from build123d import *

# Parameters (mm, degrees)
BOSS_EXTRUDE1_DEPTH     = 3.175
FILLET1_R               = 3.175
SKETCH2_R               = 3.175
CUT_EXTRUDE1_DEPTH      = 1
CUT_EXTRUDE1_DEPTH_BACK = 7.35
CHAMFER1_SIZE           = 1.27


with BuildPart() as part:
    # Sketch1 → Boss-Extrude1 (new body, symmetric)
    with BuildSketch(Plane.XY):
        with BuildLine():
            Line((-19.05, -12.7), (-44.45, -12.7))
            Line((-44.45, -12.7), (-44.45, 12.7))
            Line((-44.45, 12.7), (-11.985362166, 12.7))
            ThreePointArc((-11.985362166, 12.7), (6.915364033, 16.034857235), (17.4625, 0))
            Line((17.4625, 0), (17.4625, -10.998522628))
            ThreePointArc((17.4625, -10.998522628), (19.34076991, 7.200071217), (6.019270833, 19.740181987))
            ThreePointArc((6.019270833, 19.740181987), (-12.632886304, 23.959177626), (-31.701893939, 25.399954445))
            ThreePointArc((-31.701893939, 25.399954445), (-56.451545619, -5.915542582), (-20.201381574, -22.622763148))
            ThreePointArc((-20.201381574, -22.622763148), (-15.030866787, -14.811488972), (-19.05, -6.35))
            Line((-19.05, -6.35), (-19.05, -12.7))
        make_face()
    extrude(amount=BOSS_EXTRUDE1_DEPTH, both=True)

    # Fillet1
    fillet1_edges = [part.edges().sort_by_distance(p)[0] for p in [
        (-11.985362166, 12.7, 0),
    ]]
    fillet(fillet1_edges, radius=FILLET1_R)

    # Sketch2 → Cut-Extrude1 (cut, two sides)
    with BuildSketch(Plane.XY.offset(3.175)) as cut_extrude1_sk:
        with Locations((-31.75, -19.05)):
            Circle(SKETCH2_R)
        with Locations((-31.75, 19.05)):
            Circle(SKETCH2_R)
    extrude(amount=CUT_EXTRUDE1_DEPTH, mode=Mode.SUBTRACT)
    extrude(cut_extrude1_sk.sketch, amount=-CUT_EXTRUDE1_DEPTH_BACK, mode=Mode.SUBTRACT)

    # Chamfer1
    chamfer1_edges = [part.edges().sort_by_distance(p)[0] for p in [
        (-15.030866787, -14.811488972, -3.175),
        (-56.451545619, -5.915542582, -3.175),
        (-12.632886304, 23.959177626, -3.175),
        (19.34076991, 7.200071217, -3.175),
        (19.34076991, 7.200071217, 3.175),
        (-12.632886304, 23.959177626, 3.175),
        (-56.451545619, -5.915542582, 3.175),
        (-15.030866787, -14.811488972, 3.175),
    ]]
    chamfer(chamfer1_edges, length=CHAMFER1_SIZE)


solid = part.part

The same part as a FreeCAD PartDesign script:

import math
import FreeCAD as App
import Part
import Sketcher
Q = App.Units.Quantity


def edges_at(feature, points):
    """Names of the edges that pass closest to the given points."""
    edges = feature.Shape.Edges
    near = lambda p: min(range(len(edges)), key=lambda i: edges[i].distToShape(Part.Vertex(*p))[0])
    return sorted({f"Edge{near(p) + 1}" for p in points})

doc = App.newDocument("Part")
body = doc.addObject("PartDesign::Body", "Body")

# Sketch on XY plane
sketch1 = doc.addObject("Sketcher::SketchObject", "Sketch")
body.addObject(sketch1)
sketch1.AttachmentSupport = (doc.XY_Plane, [""])
sketch1.MapMode = "FlatFace"
sketch1.addGeometry(Part.LineSegment(App.Vector(-19, -13, 0), App.Vector(-44, -13, 0)), False)
sketch1.addGeometry(Part.LineSegment(App.Vector(-44, -13, 0), App.Vector(-44, 13, 0)), False)
sketch1.addGeometry(Part.LineSegment(App.Vector(-44, 13, 0), App.Vector(-12, 13, 0)), False)
sketch1.addGeometry(Part.ArcOfCircle(Part.Circle(App.Vector(0, 0, 0), App.Vector(0, 0, 1), 17), math.radians(0), math.radians(133)), False)
sketch1.addGeometry(Part.LineSegment(App.Vector(17, 0, 0), App.Vector(17, -11, 0)), False)
sketch1.addGeometry(Part.ArcOfCircle(Part.Circle(App.Vector(0, 0, 0), App.Vector(0, 0, 1), 21), math.radians(-32), math.radians(73)), False)
sketch1.addGeometry(Part.ArcOfCircle(Part.Circle(App.Vector(-32, -105, 0), App.Vector(0, 0, 1), 130), math.radians(73.04), math.radians(89.89)), False)
sketch1.addGeometry(Part.ArcOfCircle(Part.Circle(App.Vector(-32, 0, 0), App.Vector(0, 0, 1), 25), math.radians(90), math.radians(297)), False)
sketch1.addGeometry(Part.ArcOfCircle(Part.Circle(App.Vector(-25, -14, 0), App.Vector(0, 0, 1), 10), math.radians(-63), math.radians(55)), False)
sketch1.addGeometry(Part.LineSegment(App.Vector(-19, -6, 0), App.Vector(-19, -13, 0)), False)
sketch1.addConstraint(Sketcher.Constraint("Coincident", 0, 2, 1, 1))
sketch1.addConstraint(Sketcher.Constraint("Coincident", 1, 2, 2, 1))
sketch1.addConstraint(Sketcher.Constraint("Coincident", 2, 2, 3, 2))
sketch1.addConstraint(Sketcher.Constraint("Tangent", 3, 1, 4, 1))
sketch1.addConstraint(Sketcher.Constraint("Coincident", 4, 2, 5, 1))
sketch1.addConstraint(Sketcher.Constraint("Tangent", 5, 2, 6, 1))
sketch1.addConstraint(Sketcher.Constraint("Tangent", 6, 2, 7, 1))
sketch1.addConstraint(Sketcher.Constraint("Tangent", 7, 2, 8, 1))
sketch1.addConstraint(Sketcher.Constraint("Coincident", 8, 2, 9, 1))
sketch1.addConstraint(Sketcher.Constraint("Coincident", 9, 2, 0, 1))
sketch1.addConstraint(Sketcher.Constraint("Horizontal", 0))
sketch1.addConstraint(Sketcher.Constraint("Vertical", 1))
sketch1.addConstraint(Sketcher.Constraint("Horizontal", 2))
sketch1.addConstraint(Sketcher.Constraint("Vertical", 4))
sketch1.addConstraint(Sketcher.Constraint("Vertical", 9))
sketch1.addConstraint(Sketcher.Constraint("Coincident", 3, 3, -1, 1))
sketch1.addConstraint(Sketcher.Constraint("Coincident", 5, 3, -1, 1))
sketch1.addConstraint(Sketcher.Constraint("PointOnObject", 7, 3, -1))
sketch1.addConstraint(Sketcher.Constraint("Equal", 0, 1))
sketch1.addConstraint(Sketcher.Constraint("Radius", 7, Q("1 in")))
sketch1.addConstraint(Sketcher.Constraint("DistanceX", 0, 2, 0, 1, Q("1 in")))
sketch1.addConstraint(Sketcher.Constraint("Radius", 3, Q("0.6875 in")))
sketch1.addConstraint(Sketcher.Constraint("Radius", 5, Q("0.8125 in")))
sketch1.addConstraint(Sketcher.Constraint("Radius", 6, Q("5.125 in")))
sketch1.addConstraint(Sketcher.Constraint("Radius", 8, Q("0.375 in")))
sketch1.addConstraint(Sketcher.Constraint("DistanceY", 9, 2, 9, 1, Q("0.25 in")))
sketch1.addConstraint(Sketcher.Constraint("DistanceY", 0, 2, -1, 1, Q("0.5 in")))
sketch1.addConstraint(Sketcher.Constraint("DistanceX", 0, 2, 7, 3, Q("0.5 in")))
sketch1.addConstraint(Sketcher.Constraint("DistanceX", 7, 3, -1, 1, Q("1.25 in")))
pad1 = doc.addObject("PartDesign::Pad", "Pad")
body.addObject(pad1)
pad1.Profile = sketch1
pad1.Length = Q("0.25 in")
pad1.Midplane = True
doc.recompute()

fillet = doc.addObject("PartDesign::Fillet", "Fillet")
body.addObject(fillet)
fillet.Base = (pad1, edges_at(pad1, [(-11.985, 12.7, 0)]))
fillet.Radius = Q("0.125 in")

# Sketch on XY plane
sketch2 = doc.addObject("Sketcher::SketchObject", "Sketch001")
body.addObject(sketch2)
sketch2.AttachmentSupport = (doc.XY_Plane, [""])
sketch2.MapMode = "FlatFace"
sketch2.AttachmentOffset = App.Placement(App.Vector(0, 0, 0.125 * 25.4), App.Rotation())
sketch2.addGeometry(Part.Circle(App.Vector(-31.8, -19.1, 0), App.Vector(0, 0, 1), 3.2), False)
sketch2.addGeometry(Part.Circle(App.Vector(-31.8, 19.1, 0), App.Vector(0, 0, 1), 3.2), False)
sketch2.addConstraint(Sketcher.Constraint("Equal", 0, 1))
sketch2.addConstraint(Sketcher.Constraint("Symmetric", 0, 3, 1, 3, -1))
sketch2.addConstraint(Sketcher.Constraint("Diameter", 0, Q("0.25 in")))
sketch2.addConstraint(Sketcher.Constraint("DistanceY", 0, 3, 1, 3, Q("1.5 in")))
sketch2.addConstraint(Sketcher.Constraint("DistanceX", 0, 3, -1, 1, Q("1.25 in")))
pocket1 = doc.addObject("PartDesign::Pocket", "Pocket")
body.addObject(pocket1)
pocket1.Profile = sketch2
pocket1.Type = "ThroughAll"
pocket1.Midplane = True
doc.recompute()

chamfer = doc.addObject("PartDesign::Chamfer", "Chamfer")
body.addObject(chamfer)
chamfer.Base = (pocket1, edges_at(pocket1, [
    (-15.031, -14.811, -3.175),
    (-56.452, -5.916, -3.175),
    (-12.633, 23.959, -3.175),
    (19.341, 7.2, -3.175),
    (19.341, 7.2, 3.175),
    (-12.633, 23.959, 3.175),
    (-56.452, -5.916, 3.175),
    (-15.031, -14.811, 3.175),
]))
chamfer.Size = Q("0.05 in")

doc.recompute()
